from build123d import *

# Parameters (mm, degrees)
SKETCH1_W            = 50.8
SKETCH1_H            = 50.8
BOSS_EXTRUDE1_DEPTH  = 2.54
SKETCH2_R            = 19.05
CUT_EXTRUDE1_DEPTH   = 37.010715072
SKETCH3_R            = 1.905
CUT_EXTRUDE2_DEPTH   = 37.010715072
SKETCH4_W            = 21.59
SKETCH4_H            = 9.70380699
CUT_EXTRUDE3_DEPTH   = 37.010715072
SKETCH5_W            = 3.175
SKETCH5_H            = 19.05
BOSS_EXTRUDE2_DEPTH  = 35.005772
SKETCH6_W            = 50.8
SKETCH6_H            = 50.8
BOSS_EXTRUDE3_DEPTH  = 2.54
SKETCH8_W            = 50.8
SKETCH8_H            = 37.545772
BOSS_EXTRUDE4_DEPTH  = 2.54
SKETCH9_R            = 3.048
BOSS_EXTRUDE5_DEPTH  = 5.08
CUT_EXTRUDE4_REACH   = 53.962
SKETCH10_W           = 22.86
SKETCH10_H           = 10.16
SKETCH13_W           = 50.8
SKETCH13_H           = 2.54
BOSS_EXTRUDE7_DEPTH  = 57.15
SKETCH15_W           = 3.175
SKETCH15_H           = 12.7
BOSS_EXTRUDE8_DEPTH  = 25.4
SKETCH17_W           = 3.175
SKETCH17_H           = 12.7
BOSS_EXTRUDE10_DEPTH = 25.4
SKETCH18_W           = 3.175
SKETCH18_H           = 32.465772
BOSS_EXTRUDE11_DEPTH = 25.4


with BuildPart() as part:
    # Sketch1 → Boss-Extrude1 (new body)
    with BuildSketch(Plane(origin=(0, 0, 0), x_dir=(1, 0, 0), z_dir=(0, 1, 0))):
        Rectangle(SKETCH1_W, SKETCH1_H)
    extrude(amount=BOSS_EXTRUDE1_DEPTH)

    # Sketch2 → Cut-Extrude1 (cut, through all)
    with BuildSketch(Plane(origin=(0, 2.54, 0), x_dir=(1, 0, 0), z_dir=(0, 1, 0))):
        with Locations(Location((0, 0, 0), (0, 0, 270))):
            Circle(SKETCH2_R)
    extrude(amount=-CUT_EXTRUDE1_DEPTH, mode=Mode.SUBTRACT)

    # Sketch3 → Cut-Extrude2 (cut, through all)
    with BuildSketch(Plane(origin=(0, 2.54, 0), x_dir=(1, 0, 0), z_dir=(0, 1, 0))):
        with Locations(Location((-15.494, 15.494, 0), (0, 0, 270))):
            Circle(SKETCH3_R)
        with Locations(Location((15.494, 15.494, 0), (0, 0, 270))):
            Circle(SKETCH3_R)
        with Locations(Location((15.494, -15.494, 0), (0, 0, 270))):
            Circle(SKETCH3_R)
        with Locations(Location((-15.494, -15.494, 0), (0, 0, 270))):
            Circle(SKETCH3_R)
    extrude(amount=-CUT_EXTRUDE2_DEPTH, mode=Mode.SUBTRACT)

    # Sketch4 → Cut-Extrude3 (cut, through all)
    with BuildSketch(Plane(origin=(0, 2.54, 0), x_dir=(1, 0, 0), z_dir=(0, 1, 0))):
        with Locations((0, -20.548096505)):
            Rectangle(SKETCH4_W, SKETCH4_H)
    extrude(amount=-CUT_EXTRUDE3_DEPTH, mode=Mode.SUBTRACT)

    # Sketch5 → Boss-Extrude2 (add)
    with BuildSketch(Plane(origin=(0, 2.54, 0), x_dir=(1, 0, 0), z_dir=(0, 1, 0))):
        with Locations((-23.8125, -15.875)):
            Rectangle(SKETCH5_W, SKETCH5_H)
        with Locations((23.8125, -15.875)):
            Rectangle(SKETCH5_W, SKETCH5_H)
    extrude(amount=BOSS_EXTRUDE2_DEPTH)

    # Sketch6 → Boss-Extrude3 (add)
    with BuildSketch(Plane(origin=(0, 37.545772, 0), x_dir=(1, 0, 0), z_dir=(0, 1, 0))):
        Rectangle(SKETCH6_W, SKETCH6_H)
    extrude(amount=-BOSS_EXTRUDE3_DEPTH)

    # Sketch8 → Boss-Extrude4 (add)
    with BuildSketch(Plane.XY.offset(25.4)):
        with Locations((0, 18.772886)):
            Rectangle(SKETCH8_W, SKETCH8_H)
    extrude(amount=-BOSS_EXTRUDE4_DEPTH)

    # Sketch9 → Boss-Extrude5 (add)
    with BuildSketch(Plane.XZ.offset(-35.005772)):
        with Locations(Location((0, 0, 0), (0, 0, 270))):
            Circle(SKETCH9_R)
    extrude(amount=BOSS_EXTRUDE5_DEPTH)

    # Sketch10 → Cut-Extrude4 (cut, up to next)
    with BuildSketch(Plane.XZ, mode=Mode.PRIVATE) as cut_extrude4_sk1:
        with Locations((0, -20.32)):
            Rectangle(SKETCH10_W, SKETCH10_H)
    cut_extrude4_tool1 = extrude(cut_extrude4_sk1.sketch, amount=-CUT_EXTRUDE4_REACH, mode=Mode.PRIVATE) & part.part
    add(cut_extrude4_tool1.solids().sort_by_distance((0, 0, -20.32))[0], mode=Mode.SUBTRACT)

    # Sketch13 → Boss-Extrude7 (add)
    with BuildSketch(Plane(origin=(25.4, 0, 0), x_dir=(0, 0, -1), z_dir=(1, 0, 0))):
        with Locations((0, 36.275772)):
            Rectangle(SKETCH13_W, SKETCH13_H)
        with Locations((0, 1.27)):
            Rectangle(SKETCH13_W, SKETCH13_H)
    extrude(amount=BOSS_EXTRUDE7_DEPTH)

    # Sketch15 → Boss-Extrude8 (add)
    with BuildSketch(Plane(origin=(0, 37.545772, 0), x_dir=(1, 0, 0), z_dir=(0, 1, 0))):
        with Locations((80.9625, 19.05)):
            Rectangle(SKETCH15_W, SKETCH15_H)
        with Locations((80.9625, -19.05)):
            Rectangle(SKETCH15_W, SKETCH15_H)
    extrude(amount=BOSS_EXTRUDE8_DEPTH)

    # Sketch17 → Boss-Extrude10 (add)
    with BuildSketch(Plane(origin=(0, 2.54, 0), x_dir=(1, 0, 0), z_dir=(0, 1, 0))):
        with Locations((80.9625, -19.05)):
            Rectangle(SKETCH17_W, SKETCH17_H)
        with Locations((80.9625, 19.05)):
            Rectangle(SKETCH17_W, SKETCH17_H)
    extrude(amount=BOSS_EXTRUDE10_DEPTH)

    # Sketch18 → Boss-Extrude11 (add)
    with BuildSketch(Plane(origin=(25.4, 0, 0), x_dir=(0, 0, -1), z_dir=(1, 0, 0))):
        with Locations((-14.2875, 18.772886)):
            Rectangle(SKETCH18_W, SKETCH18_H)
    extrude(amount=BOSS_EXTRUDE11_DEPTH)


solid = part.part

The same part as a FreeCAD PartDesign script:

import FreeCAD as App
import Part
import Sketcher
from FreeCAD import Vector
Q = App.Units.Quantity


def add_polygon(sketch, points):
    """Adds a closed chain of lines whose ends are joined by coincident constraints."""
    first, n = sketch.GeometryCount, len(points)
    for a, b in zip(points, points[1:] + points[:1]):
        sketch.addGeometry(Part.LineSegment(App.Vector(*a, 0), App.Vector(*b, 0)), False)
    for i in range(n):
        sketch.addConstraint(Sketcher.Constraint("Coincident", first + i, 2, first + (i + 1) % n, 1))

doc = App.newDocument("Part")
params = doc.addObject("Spreadsheet::Sheet", "Params")
for row, (alias, value) in enumerate([
    ("sketch1_width", "2 in"),
    ("pad1_length", "0.1 in"),
    ("sketch2_diameter", "1.5 in"),
    ("sketch3_diameter", "0.15 in"),
    ("sketch4_width", "0.85 in"),
    ("sketch5_height", "0.75 in"),
    ("sketch5_width", "0.125 in"),
    ("pad2_length", "35.005772 mm"),
    ("sketch6_width", "2 in"),
    ("pad3_length", "0.1 in"),
    ("sketch7_width", "2 in"),
    ("pad4_length", "0.1 in"),
    ("sketch8_diameter", "0.24 in"),
    ("pad5_length", "0.2 in"),
    ("sketch9_width", "0.9 in"),
    ("sketch9_height", "0.4 in"),
    ("sketch10_height", "2 in"),
    ("sketch10_width", "0.1 in"),
    ("pad6_length", "2.25 in"),
    ("sketch11_height", "0.5 in"),
    ("sketch11_width", "0.125 in"),
    ("pad7_length", "1 in"),
    ("sketch12_height", "0.5 in"),
    ("sketch12_width", "0.125 in"),
    ("pad8_length", "1 in"),
    ("sketch13_height", "0.125 in"),
    ("pad9_length", "1 in"),
], start=1):
    params.set(f"A{row}", alias)
    params.set(f"B{row}", "=" + value)
    params.setAlias(f"B{row}", alias)

body = doc.addObject("PartDesign::Body", "Body")

# Sketch on XZ plane
sketch1 = doc.addObject("Sketcher::SketchObject", "Sketch")
body.addObject(sketch1)
sketch1.AttachmentSupport = (doc.XZ_Plane, [""])
sketch1.MapMode = "FlatFace"
add_polygon(sketch1, [(-25.4, -25.4), (-25.4, 25.4), (25.4, 25.4), (25.4, -25.4)])  # lines 0-3
sketch1.addConstraint([
    Sketcher.Constraint("Vertical", 0),
    Sketcher.Constraint("Horizontal", 1),
    Sketcher.Constraint("Vertical", 2),
    Sketcher.Constraint("Horizontal", 3),
    Sketcher.Constraint("Symmetric", 0, 2, 2, 2, -1, 1),
    Sketcher.Constraint("Equal", 3, 0),
    Sketcher.Constraint("DistanceX", 1, 1, 1, 2, Q("2 in")),
])
sketch1.setExpression("Constraints[10]", "Params.sketch1_width")
pad1 = doc.addObject("PartDesign::Pad", "Pad")
body.addObject(pad1)
pad1.Profile = sketch1
pad1.setExpression("Length", "Params.pad1_length")
pad1.Reversed = True

# Sketch on XZ plane
sketch2 = doc.addObject("Sketcher::SketchObject", "Sketch001")
body.addObject(sketch2)
sketch2.AttachmentSupport = (doc.XZ_Plane, [""])
sketch2.MapMode = "FlatFace"
sketch2.AttachmentOffset = App.Placement(Vector(0, 0, -0.1 * 25.4), App.Rotation())
sketch2.addGeometry(Part.Circle(Vector(0, 0, 0), Vector(0, 0, 1), 19.05), False)
sketch2.addConstraint([
    Sketcher.Constraint("Coincident", 0, 3, -1, 1),
    Sketcher.Constraint("Diameter", 0, Q("1.5 in")),
])
sketch2.setExpression("Constraints[1]", "Params.sketch2_diameter")
pocket1 = doc.addObject("PartDesign::Pocket", "Pocket")
body.addObject(pocket1)
pocket1.Profile = sketch2
pocket1.Type = "ThroughAll"
pocket1.Reversed = True

# Sketch on XZ plane
sketch3 = doc.addObject("Sketcher::SketchObject", "Sketch002")
body.addObject(sketch3)
sketch3.AttachmentSupport = (doc.XZ_Plane, [""])
sketch3.MapMode = "FlatFace"
sketch3.AttachmentOffset = App.Placement(Vector(0, 0, -0.1 * 25.4), App.Rotation())
sketch3.addGeometry([
    Part.Circle(Vector(-15.494, -15.494, 0), Vector(0, 0, 1), 1.905),
    Part.Circle(Vector(15.494, -15.494, 0), Vector(0, 0, 1), 1.905),
    Part.Circle(Vector(15.494, 15.494, 0), Vector(0, 0, 1), 1.905),
    Part.Circle(Vector(-15.494, 15.494, 0), Vector(0, 0, 1), 1.905),
], False)
sketch3.addConstraint([
    Sketcher.Constraint("Equal", 0, 1),
    Sketcher.Constraint("Equal", 1, 2),
    Sketcher.Constraint("Equal", 2, 3),
    Sketcher.Constraint("Symmetric", 0, 3, 2, 3, -1, 1),
    Sketcher.Constraint("Symmetric", 1, 3, 3, 3, -1, 1),
    Sketcher.Constraint("Symmetric", 0, 3, 1, 3, -2),
    Sketcher.Constraint("Diameter", 0, Q("0.15 in")),
    Sketcher.Constraint("DistanceX", 0, 3, -1, 1, Q("0.61 in")),
    Sketcher.Constraint("DistanceY", 0, 3, -1, 1, Q("0.61 in")),
])
sketch3.setExpression("Constraints[6]", "Params.sketch3_diameter")
pocket2 = doc.addObject("PartDesign::Pocket", "Pocket001")
body.addObject(pocket2)
pocket2.Profile = sketch3
pocket2.Type = "ThroughAll"
pocket2.Reversed = True

# Sketch on XZ plane
sketch4 = doc.addObject("Sketcher::SketchObject", "Sketch003")
body.addObject(sketch4)
sketch4.AttachmentSupport = (doc.XZ_Plane, [""])
sketch4.MapMode = "FlatFace"
sketch4.AttachmentOffset = App.Placement(Vector(0, 0, -0.1 * 25.4), App.Rotation())
add_polygon(sketch4, [(-10.795, 15.696193), (-10.795, 25.4), (10.795, 25.4), (10.795, 15.696193)])  # lines 0-3
sketch4.addConstraint([
    Sketcher.Constraint("Vertical", 0),
    Sketcher.Constraint("Horizontal", 1),
    Sketcher.Constraint("Vertical", 2),
    Sketcher.Constraint("Horizontal", 3),
    Sketcher.Constraint("DistanceY", -1, 1, 0, 2, Q("1 in")),
    Sketcher.Constraint("DistanceX", 1, 1, 1, 2, Q("0.85 in")),
    Sketcher.Constraint("DistanceX", 0, 2, -1, 1, Q("0.425 in")),
    Sketcher.Constraint("DistanceY", 0, 1, 0, 2, 9.703807),
])
sketch4.setExpression("Constraints[9]", "Params.sketch4_width")
pocket3 = doc.addObject("PartDesign::Pocket", "Pocket002")
body.addObject(pocket3)
pocket3.Profile = sketch4
pocket3.Type = "ThroughAll"
pocket3.Reversed = True

# Sketch on XZ plane
sketch5 = doc.addObject("Sketcher::SketchObject", "Sketch004")
body.addObject(sketch5)
sketch5.AttachmentSupport = (doc.XZ_Plane, [""])
sketch5.MapMode = "FlatFace"
sketch5.AttachmentOffset = App.Placement(Vector(0, 0, -0.1 * 25.4), App.Rotation())
add_polygon(sketch5, [(-25.4, 6.35), (-25.4, 25.4), (-22.225, 25.4), (-22.225, 6.35)])  # lines 0-3
add_polygon(sketch5, [(22.225, 6.35), (22.225, 25.4), (25.4, 25.4), (25.4, 6.35)])  # lines 4-7
sketch5.addConstraint([
    Sketcher.Constraint("Vertical", 0),
    Sketcher.Constraint("Horizontal", 1),
    Sketcher.Constraint("Vertical", 2),
    Sketcher.Constraint("Horizontal", 3),
    Sketcher.Constraint("Vertical", 4),
    Sketcher.Constraint("Horizontal", 5),
    Sketcher.Constraint("Vertical", 6),
    Sketcher.Constraint("Horizontal", 7),
    Sketcher.Constraint("Symmetric", 1, 2, 4, 2, -2),
    Sketcher.Constraint("Symmetric", 3, 2, 6, 2, -2),
    Sketcher.Constraint("DistanceX", 0, 2, -1, 1, Q("1 in")),
    Sketcher.Constraint("DistanceY", -1, 1, 0, 2, Q("1 in")),
    Sketcher.Constraint("DistanceY", 0, 1, 0, 2, Q("0.75 in")),
    Sketcher.Constraint("DistanceX", 1, 1, 1, 2, Q("0.125 in")),
])
sketch5.setExpression("Constraints[20]", "Params.sketch5_height")
sketch5.setExpression("Constraints[21]", "Params.sketch5_width")
pad2 = doc.addObject("PartDesign::Pad", "Pad001")
body.addObject(pad2)
pad2.Profile = sketch5
pad2.setExpression("Length", "Params.pad2_length")
pad2.Reversed = True

# Sketch on XZ plane
sketch6 = doc.addObject("Sketcher::SketchObject", "Sketch005")
body.addObject(sketch6)
sketch6.AttachmentSupport = (doc.XZ_Plane, [""])
sketch6.MapMode = "FlatFace"
sketch6.AttachmentOffset = App.Placement(Vector(0, 0, -37.545772), App.Rotation())
add_polygon(sketch6, [(-25.4, -25.4), (-25.4, 25.4), (25.4, 25.4), (25.4, -25.4)])  # lines 0-3
sketch6.addConstraint([
    Sketcher.Constraint("Vertical", 0),
    Sketcher.Constraint("Horizontal", 1),
    Sketcher.Constraint("Vertical", 2),
    Sketcher.Constraint("Horizontal", 3),
    Sketcher.Constraint("Symmetric", 0, 2, 2, 2, -1, 1),
    Sketcher.Constraint("Equal", 3, 0),
    Sketcher.Constraint("DistanceX", 1, 1, 1, 2, Q("2 in")),
])
sketch6.setExpression("Constraints[10]", "Params.sketch6_width")
pad3 = doc.addObject("PartDesign::Pad", "Pad002")
body.addObject(pad3)
pad3.Profile = sketch6
pad3.setExpression("Length", "Params.pad3_length")

# Sketch on XY plane
sketch7 = doc.addObject("Sketcher::SketchObject", "Sketch006")
body.addObject(sketch7)
sketch7.AttachmentSupport = (doc.XY_Plane, [""])
sketch7.MapMode = "FlatFace"
sketch7.AttachmentOffset = App.Placement(Vector(0, 0, 1 * 25.4), App.Rotation())
add_polygon(sketch7, [(-25.4, 37.545772), (-25.4, 0), (25.4, 0), (25.4, 37.545772)])  # lines 0-3
sketch7.addConstraint([
    Sketcher.Constraint("Vertical", 0),
    Sketcher.Constraint("Horizontal", 1),
    Sketcher.Constraint("Vertical", 2),
    Sketcher.Constraint("Horizontal", 3),
    Sketcher.Constraint("Symmetric", 0, 2, 1, 2, -1, 1),
    Sketcher.Constraint("DistanceX", 1, 1, 1, 2, Q("2 in")),
    Sketcher.Constraint("DistanceY", 0, 2, 0, 1, 37.545772),
])
sketch7.setExpression("Constraints[9]", "Params.sketch7_width")
pad4 = doc.addObject("PartDesign::Pad", "Pad003")
body.addObject(pad4)
pad4.Profile = sketch7
pad4.setExpression("Length", "Params.pad4_length")
pad4.Reversed = True

# Sketch on XZ plane
sketch8 = doc.addObject("Sketcher::SketchObject", "Sketch007")
body.addObject(sketch8)
sketch8.AttachmentSupport = (doc.XZ_Plane, [""])
sketch8.MapMode = "FlatFace"
sketch8.AttachmentOffset = App.Placement(Vector(0, 0, -35.005772), App.Rotation())
sketch8.addGeometry(Part.Circle(Vector(0, 0, 0), Vector(0, 0, 1), 3.048), False)
sketch8.addConstraint([
    Sketcher.Constraint("Coincident", 0, 3, -1, 1),
    Sketcher.Constraint("Diameter", 0, Q("0.24 in")),
])
sketch8.setExpression("Constraints[1]", "Params.sketch8_diameter")
pad5 = doc.addObject("PartDesign::Pad", "Pad004")
body.addObject(pad5)
pad5.Profile = sketch8
pad5.setExpression("Length", "Params.pad5_length")

# Sketch on XZ plane
sketch9 = doc.addObject("Sketcher::SketchObject", "Sketch008")
body.addObject(sketch9)
sketch9.AttachmentSupport = (doc.XZ_Plane, [""])
sketch9.MapMode = "FlatFace"
add_polygon(sketch9, [(-11.43, -15.24), (-11.43, -25.4), (11.43, -25.4), (11.43, -15.24)])  # lines 0-3
sketch9.addConstraint([
    Sketcher.Constraint("Vertical", 0),
    Sketcher.Constraint("Horizontal", 1),
    Sketcher.Constraint("Vertical", 2),
    Sketcher.Constraint("Horizontal", 3),
    Sketcher.Constraint("DistanceX", 1, 1, 1, 2, Q("0.9 in")),
    Sketcher.Constraint("DistanceY", 0, 2, 0, 1, Q("0.4 in")),
    Sketcher.Constraint("DistanceY", 0, 2, -1, 1, Q("1 in")),
    Sketcher.Constraint("DistanceX", 0, 2, -1, 1, Q("0.45 in")),
])
sketch9.setExpression("Constraints[8]", "Params.sketch9_width")
sketch9.setExpression("Constraints[9]", "Params.sketch9_height")
pocket4 = doc.addObject("PartDesign::Pocket", "Pocket003")
body.addObject(pocket4)
pocket4.Profile = sketch9
pocket4.Type = "UpToFirst"

# Sketch on YZ plane
sketch10 = doc.addObject("Sketcher::SketchObject", "Sketch009")
body.addObject(sketch10)
sketch10.AttachmentSupport = (doc.YZ_Plane, [""])
sketch10.MapMode = "FlatFace"
sketch10.AttachmentOffset = App.Placement(Vector(0, 0, 1 * 25.4), App.Rotation())
add_polygon(sketch10, [(37.545772, 25.4), (35.005772, 25.4), (35.005772, -25.4), (37.545772, -25.4)])  # lines 0-3
add_polygon(sketch10, [(2.54, 25.4), (0, 25.4), (0, -25.4), (2.54, -25.4)])  # lines 4-7
sketch10.addConstraint([
    Sketcher.Constraint("Horizontal", 0),
    Sketcher.Constraint("Vertical", 1),
    Sketcher.Constraint("Horizontal", 2),
    Sketcher.Constraint("Vertical", 3),
    Sketcher.Constraint("Horizontal", 4),
    Sketcher.Constraint("Vertical", 5),
    Sketcher.Constraint("Horizontal", 6),
    Sketcher.Constraint("Vertical", 7),
    Sketcher.Constraint("Symmetric", 4, 2, 5, 2, -1, 1),
    Sketcher.Constraint("Horizontal", 3, 2, 4, 2),
    Sketcher.Constraint("Horizontal", 2, 2, 5, 2),
    Sketcher.Constraint("Equal", 2, 4),
    Sketcher.Constraint("DistanceY", 1, 2, 1, 1, Q("2 in")),
    Sketcher.Constraint("DistanceX", 0, 2, 0, 1, Q("0.1 in")),
    Sketcher.Constraint("DistanceX", -1, 1, 0, 2, 35.005772),
])
sketch10.setExpression("Constraints[20]", "Params.sketch10_height")
sketch10.setExpression("Constraints[21]", "Params.sketch10_width")
pad6 = doc.addObject("PartDesign::Pad", "Pad005")
body.addObject(pad6)
pad6.Profile = sketch10
pad6.setExpression("Length", "Params.pad6_length")

# Sketch on XZ plane
sketch11 = doc.addObject("Sketcher::SketchObject", "Sketch010")
body.addObject(sketch11)
sketch11.AttachmentSupport = (doc.XZ_Plane, [""])
sketch11.MapMode = "FlatFace"
sketch11.AttachmentOffset = App.Placement(Vector(0, 0, -37.545772), App.Rotation())
add_polygon(sketch11, [(79.375, -25.4), (79.375, -12.7), (82.55, -12.7), (82.55, -25.4)])  # lines 0-3
add_polygon(sketch11, [(79.375, 12.7), (79.375, 25.4), (82.55, 25.4), (82.55, 12.7)])  # lines 4-7
sketch11.addConstraint([
    Sketcher.Constraint("Vertical", 0),
    Sketcher.Constraint("Horizontal", 1),
    Sketcher.Constraint("Vertical", 2),
    Sketcher.Constraint("Horizontal", 3),
    Sketcher.Constraint("Vertical", 4),
    Sketcher.Constraint("Horizontal", 5),
    Sketcher.Constraint("Vertical", 6),
    Sketcher.Constraint("Horizontal", 7),
    Sketcher.Constraint("Symmetric", 3, 2, 4, 2, -1),
    Sketcher.Constraint("Symmetric", 1, 2, 6, 2, -1),
    Sketcher.Constraint("DistanceY", 0, 1, 0, 2, Q("0.5 in")),
    Sketcher.Constraint("DistanceY", 2, 2, -1, 1, Q("1 in")),
    Sketcher.Constraint("DistanceX", 1, 1, 1, 2, Q("0.125 in")),
    Sketcher.Constraint("DistanceX", -1, 1, 1, 2, Q("3.25 in")),
])
sketch11.setExpression("Constraints[18]", "Params.sketch11_height")
sketch11.setExpression("Constraints[20]", "Params.sketch11_width")
pad7 = doc.addObject("PartDesign::Pad", "Pad006")
body.addObject(pad7)
pad7.Profile = sketch11
pad7.setExpression("Length", "Params.pad7_length")
pad7.Reversed = True

# Sketch on XZ plane
sketch12 = doc.addObject("Sketcher::SketchObject", "Sketch011")
body.addObject(sketch12)
sketch12.AttachmentSupport = (doc.XZ_Plane, [""])
sketch12.MapMode = "FlatFace"
sketch12.AttachmentOffset = App.Placement(Vector(0, 0, -0.1 * 25.4), App.Rotation())
add_polygon(sketch12, [(79.375, 12.7), (79.375, 25.4), (82.55, 25.4), (82.55, 12.7)])  # lines 0-3
add_polygon(sketch12, [(79.375, -25.4), (79.375, -12.7), (82.55, -12.7), (82.55, -25.4)])  # lines 4-7
sketch12.addConstraint([
    Sketcher.Constraint("Vertical", 0),
    Sketcher.Constraint("Horizontal", 1),
    Sketcher.Constraint("Vertical", 2),
    Sketcher.Constraint("Horizontal", 3),
    Sketcher.Constraint("Vertical", 4),
    Sketcher.Constraint("Horizontal", 5),
    Sketcher.Constraint("Vertical", 6),
    Sketcher.Constraint("Horizontal", 7),
    Sketcher.Constraint("Symmetric", 3, 2, 4, 2, -1),
    Sketcher.Constraint("Symmetric", 1, 2, 6, 2, -1),
    Sketcher.Constraint("DistanceY", 0, 1, 0, 2, Q("0.5 in")),
    Sketcher.Constraint("DistanceY", -1, 1, 0, 2, Q("1 in")),
    Sketcher.Constraint("DistanceX", 1, 1, 1, 2, Q("0.125 in")),
    Sketcher.Constraint("DistanceX", -1, 1, 1, 2, Q("3.25 in")),
])
sketch12.setExpression("Constraints[18]", "Params.sketch12_height")
sketch12.setExpression("Constraints[20]", "Params.sketch12_width")
pad8 = doc.addObject("PartDesign::Pad", "Pad007")
body.addObject(pad8)
pad8.Profile = sketch12
pad8.setExpression("Length", "Params.pad8_length")
pad8.Reversed = True

# Sketch on YZ plane
sketch13 = doc.addObject("Sketcher::SketchObject", "Sketch012")
body.addObject(sketch13)
sketch13.AttachmentSupport = (doc.YZ_Plane, [""])
sketch13.MapMode = "FlatFace"
sketch13.AttachmentOffset = App.Placement(Vector(0, 0, 1 * 25.4), App.Rotation())
add_polygon(sketch13, [(35.005772, 15.875), (2.54, 15.875), (2.54, 12.7), (35.005772, 12.7)])  # lines 0-3
sketch13.addConstraint([
    Sketcher.Constraint("Horizontal", 0),
    Sketcher.Constraint("Vertical", 1),
    Sketcher.Constraint("Horizontal", 2),
    Sketcher.Constraint("Vertical", 3),
    Sketcher.Constraint("DistanceX", -1, 1, 0, 2, Q("0.1 in")),
    Sketcher.Constraint("DistanceY", -1, 1, 1, 2, Q("0.5 in")),
    Sketcher.Constraint("DistanceY", 1, 2, 1, 1, Q("0.125 in")),
    Sketcher.Constraint("DistanceX", 0, 2, 0, 1, 32.465772),
])
sketch13.setExpression("Constraints[10]", "Params.sketch13_height")
pad9 = doc.addObject("PartDesign::Pad", "Pad008")
body.addObject(pad9)
pad9.Profile = sketch13
pad9.setExpression("Length", "Params.pad9_length")

doc.recompute()
